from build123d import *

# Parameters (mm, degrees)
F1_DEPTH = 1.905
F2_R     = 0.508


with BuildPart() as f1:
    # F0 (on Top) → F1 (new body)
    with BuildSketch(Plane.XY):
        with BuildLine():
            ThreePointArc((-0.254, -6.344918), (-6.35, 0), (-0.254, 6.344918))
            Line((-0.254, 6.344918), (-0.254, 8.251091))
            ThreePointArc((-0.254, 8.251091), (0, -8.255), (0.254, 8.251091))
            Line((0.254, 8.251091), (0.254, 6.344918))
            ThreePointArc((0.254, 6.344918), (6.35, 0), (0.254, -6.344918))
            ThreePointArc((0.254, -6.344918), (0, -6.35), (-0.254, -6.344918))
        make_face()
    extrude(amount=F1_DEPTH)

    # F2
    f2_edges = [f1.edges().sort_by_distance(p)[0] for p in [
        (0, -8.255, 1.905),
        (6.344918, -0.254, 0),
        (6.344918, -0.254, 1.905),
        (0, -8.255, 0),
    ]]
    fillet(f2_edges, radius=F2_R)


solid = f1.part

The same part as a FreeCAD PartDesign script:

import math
import FreeCAD as App
import Part
import Sketcher
Q = App.Units.Quantity


def edges_at(feature, points):
    """Names of the edges that pass closest to the given points."""
    edges = feature.Shape.Edges
    near = lambda p: min(range(len(edges)), key=lambda i: edges[i].distToShape(Part.Vertex(*p))[0])
    return sorted({f"Edge{near(p) + 1}" for p in points})

doc = App.newDocument("Part")
body = doc.addObject("PartDesign::Body", "Body")

# Sketch on XY plane
sketch1 = doc.addObject("Sketcher::SketchObject", "Sketch")
body.addObject(sketch1)
sketch1.AttachmentSupport = (doc.XY_Plane, [""])
sketch1.MapMode = "FlatFace"
sketch1.addGeometry(Part.ArcOfCircle(Part.Circle(App.Vector(0, 0, 0), App.Vector(0, 0, 1), 6.35), math.radians(92.292443), math.radians(267.707557)), False)
sketch1.addGeometry(Part.LineSegment(App.Vector(-0.254, 6.344918, 0), App.Vector(-0.254, 8.251091, 0)), False)
sketch1.addGeometry(Part.ArcOfCircle(Part.Circle(App.Vector(0, 0, 0), App.Vector(0, 0, 1), 8.255), math.radians(91.763225), math.radians(448.236775)), False)
sketch1.addGeometry(Part.LineSegment(App.Vector(0.254, 8.251091, 0), App.Vector(0.254, 6.344918, 0)), False)
sketch1.addGeometry(Part.ArcOfCircle(Part.Circle(App.Vector(0, 0, 0), App.Vector(0, 0, 1), 6.35), math.radians(-87.707557), math.radians(87.707557)), False)
sketch1.addGeometry(Part.ArcOfCircle(Part.Circle(App.Vector(0, 0.000042, 0), App.Vector(0, 0, 1), 6.350042), math.radians(-92.292428), math.radians(-87.707572)), False)
sketch1.addConstraint(Sketcher.Constraint("Coincident", 0, 1, 1, 1))
sketch1.addConstraint(Sketcher.Constraint("Coincident", 1, 2, 2, 1))
sketch1.addConstraint(Sketcher.Constraint("Coincident", 2, 2, 3, 1))
sketch1.addConstraint(Sketcher.Constraint("Coincident", 3, 2, 4, 2))
sketch1.addConstraint(Sketcher.Constraint("Coincident", 4, 1, 5, 2))
sketch1.addConstraint(Sketcher.Constraint("Coincident", 5, 1, 0, 2))
sketch1.addConstraint(Sketcher.Constraint("Vertical", 1))
sketch1.addConstraint(Sketcher.Constraint("Vertical", 3))
sketch1.addConstraint(Sketcher.Constraint("Coincident", 0, 3, -1, 1))
sketch1.addConstraint(Sketcher.Constraint("Coincident", 2, 3, -1, 1))
sketch1.addConstraint(Sketcher.Constraint("Coincident", 4, 3, -1, 1))
sketch1.addConstraint(Sketcher.Constraint("PointOnObject", 5, 3, -2))
sketch1.addConstraint(Sketcher.Constraint("Radius", 0, Q("0.25 in")))
sketch1.addConstraint(Sketcher.Constraint("Radius", 2, Q("0.325 in")))
sketch1.addConstraint(Sketcher.Constraint("DistanceX", 0, 1, -1, 1, Q("0.01 in")))
sketch1.addConstraint(Sketcher.Constraint("DistanceX", -1, 1, 2, 2, Q("0.01 in")))
sketch1.addConstraint(Sketcher.Constraint("DistanceX", -1, 1, 4, 1, Q("0.01 in")))
sketch1.addConstraint(Sketcher.Constraint("DistanceX", 5, 1, -1, 1, Q("0.01 in")))
sketch1.addConstraint(Sketcher.Constraint("Radius", 5, Q("6.350042 mm")))
pad1 = doc.addObject("PartDesign::Pad", "Pad")
body.addObject(pad1)
pad1.Profile = sketch1
pad1.Length = Q("0.075 in")
doc.recompute()

fillet = doc.addObject("PartDesign::Fillet", "Fillet")
body.addObject(fillet)
fillet.Base = (pad1, edges_at(pad1, [
    (0, -8.255, 1.905),
    (6.35, 0, 0),
    (6.35, 0, 1.905),
    (0, -8.255, 0),
]))
fillet.Radius = Q("0.02 in")

doc.recompute()
